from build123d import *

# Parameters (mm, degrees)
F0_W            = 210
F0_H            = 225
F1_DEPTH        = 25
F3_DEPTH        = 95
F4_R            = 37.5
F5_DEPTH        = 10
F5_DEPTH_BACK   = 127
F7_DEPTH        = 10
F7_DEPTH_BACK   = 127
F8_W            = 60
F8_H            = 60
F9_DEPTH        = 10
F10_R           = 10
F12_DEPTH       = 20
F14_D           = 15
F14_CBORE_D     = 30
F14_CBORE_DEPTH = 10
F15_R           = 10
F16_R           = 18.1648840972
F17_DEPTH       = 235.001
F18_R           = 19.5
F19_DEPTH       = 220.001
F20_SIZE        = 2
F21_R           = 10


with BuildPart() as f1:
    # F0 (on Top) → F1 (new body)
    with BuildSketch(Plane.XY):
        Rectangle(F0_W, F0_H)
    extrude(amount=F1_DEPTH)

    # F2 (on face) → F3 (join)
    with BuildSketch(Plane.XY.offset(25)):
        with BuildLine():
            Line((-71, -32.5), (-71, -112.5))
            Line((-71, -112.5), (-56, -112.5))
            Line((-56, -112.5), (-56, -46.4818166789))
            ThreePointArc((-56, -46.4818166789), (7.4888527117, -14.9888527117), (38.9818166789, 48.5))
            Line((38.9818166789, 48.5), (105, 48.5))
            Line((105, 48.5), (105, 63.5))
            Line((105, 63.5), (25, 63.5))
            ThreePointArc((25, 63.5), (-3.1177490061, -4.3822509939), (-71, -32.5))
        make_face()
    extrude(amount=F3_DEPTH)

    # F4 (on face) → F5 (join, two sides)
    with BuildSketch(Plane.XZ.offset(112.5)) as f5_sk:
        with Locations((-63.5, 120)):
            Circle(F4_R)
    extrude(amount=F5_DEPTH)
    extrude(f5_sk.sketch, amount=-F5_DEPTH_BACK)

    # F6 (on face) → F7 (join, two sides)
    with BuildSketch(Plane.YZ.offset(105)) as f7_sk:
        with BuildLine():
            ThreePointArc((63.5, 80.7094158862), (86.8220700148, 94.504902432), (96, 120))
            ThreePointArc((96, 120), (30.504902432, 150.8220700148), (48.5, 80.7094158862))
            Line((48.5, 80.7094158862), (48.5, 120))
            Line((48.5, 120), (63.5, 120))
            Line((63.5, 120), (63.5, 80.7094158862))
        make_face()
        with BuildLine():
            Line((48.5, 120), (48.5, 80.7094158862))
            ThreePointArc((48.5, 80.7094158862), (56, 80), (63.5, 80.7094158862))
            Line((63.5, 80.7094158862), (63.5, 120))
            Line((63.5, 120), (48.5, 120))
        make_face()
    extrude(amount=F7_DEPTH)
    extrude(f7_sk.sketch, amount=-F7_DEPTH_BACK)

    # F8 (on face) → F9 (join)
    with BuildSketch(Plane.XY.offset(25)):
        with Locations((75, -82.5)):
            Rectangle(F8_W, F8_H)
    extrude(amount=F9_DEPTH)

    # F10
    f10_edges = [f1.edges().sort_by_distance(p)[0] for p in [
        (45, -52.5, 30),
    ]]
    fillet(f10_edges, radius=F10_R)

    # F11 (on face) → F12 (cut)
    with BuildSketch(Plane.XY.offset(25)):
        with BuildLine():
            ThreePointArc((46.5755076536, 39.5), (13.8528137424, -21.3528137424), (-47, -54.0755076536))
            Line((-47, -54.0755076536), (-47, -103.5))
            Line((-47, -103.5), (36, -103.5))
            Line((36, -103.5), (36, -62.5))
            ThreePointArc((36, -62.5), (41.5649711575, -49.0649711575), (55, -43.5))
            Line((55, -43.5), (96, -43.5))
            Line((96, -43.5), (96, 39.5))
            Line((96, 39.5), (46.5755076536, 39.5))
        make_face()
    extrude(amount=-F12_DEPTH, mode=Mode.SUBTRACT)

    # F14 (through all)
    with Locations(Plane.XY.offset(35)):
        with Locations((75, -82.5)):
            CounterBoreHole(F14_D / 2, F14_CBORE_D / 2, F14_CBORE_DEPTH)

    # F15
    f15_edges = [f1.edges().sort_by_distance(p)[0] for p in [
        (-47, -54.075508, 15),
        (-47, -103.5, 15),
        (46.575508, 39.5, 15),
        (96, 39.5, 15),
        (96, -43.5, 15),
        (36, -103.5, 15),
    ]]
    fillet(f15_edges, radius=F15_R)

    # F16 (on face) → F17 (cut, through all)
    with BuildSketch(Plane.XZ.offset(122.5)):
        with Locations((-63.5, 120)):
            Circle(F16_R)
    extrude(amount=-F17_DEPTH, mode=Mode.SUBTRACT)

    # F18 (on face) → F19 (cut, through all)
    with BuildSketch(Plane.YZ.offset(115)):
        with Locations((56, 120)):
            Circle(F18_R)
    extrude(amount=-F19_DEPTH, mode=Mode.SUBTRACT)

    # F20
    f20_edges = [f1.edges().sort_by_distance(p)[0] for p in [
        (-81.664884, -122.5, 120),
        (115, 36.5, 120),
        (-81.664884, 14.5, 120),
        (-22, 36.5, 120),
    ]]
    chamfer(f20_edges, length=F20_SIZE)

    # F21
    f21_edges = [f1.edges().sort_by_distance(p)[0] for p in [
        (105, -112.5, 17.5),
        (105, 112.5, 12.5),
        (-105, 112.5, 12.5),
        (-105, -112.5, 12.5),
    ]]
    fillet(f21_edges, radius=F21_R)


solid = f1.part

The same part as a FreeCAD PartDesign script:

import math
import FreeCAD as App
import Part
import Sketcher


def edges_at(feature, points):
    """Names of the edges that pass closest to the given points."""
    edges = feature.Shape.Edges
    near = lambda p: min(range(len(edges)), key=lambda i: edges[i].distToShape(Part.Vertex(*p))[0])
    return sorted({f"Edge{near(p) + 1}" for p in points})


def add_polygon(sketch, points):
    """Adds a closed chain of lines whose ends are joined by coincident constraints."""
    first, n = sketch.GeometryCount, len(points)
    for a, b in zip(points, points[1:] + points[:1]):
        sketch.addGeometry(Part.LineSegment(App.Vector(*a, 0), App.Vector(*b, 0)), False)
    for i in range(n):
        sketch.addConstraint(Sketcher.Constraint("Coincident", first + i, 2, first + (i + 1) % n, 1))

doc = App.newDocument("Part")
body = doc.addObject("PartDesign::Body", "Body")

sketch1 = doc.addObject("Sketcher::SketchObject", "Sketch")
body.addObject(sketch1)
sketch1.AttachmentSupport = (doc.XY_Plane, [""])
sketch1.MapMode = "FlatFace"
add_polygon(sketch1, [(-105, 112.5), (-105, -112.5), (105, -112.5), (105, 112.5)])
sketch1.addConstraint(Sketcher.Constraint("Vertical", 0))
sketch1.addConstraint(Sketcher.Constraint("Horizontal", 1))
sketch1.addConstraint(Sketcher.Constraint("Vertical", 2))
sketch1.addConstraint(Sketcher.Constraint("Horizontal", 3))
sketch1.addConstraint(Sketcher.Constraint("Symmetric", 0, 2, 2, 2, -1, 1))
sketch1.addConstraint(Sketcher.Constraint("DistanceX", 1, 1, 1, 2, 210.0))
sketch1.addConstraint(Sketcher.Constraint("DistanceY", 0, 2, 0, 1, 225.0))
pad1 = doc.addObject("PartDesign::Pad", "Pad")
body.addObject(pad1)
pad1.Profile = sketch1
pad1.Length = 25

sketch2 = doc.addObject("Sketcher::SketchObject", "Sketch001")
body.addObject(sketch2)
sketch2.AttachmentSupport = (doc.XY_Plane, [""])
sketch2.MapMode = "FlatFace"
sketch2.AttachmentOffset = App.Placement(App.Vector(0, 0, 25), App.Rotation())
sketch2.addGeometry(Part.LineSegment(App.Vector(-71, -32.5, 0), App.Vector(-71, -112.5, 0)), False)
sketch2.addGeometry(Part.LineSegment(App.Vector(-71, -112.5, 0), App.Vector(-56, -112.5, 0)), False)
sketch2.addGeometry(Part.LineSegment(App.Vector(-56, -112.5, 0), App.Vector(-56, -46.481817, 0)), False)
sketch2.addGeometry(Part.ArcOfCircle(Part.Circle(App.Vector(-71, 63.5, 0), App.Vector(0, 0, 1), 111), math.radians(-82.233566), math.radians(-7.766434)), False)
sketch2.addGeometry(Part.LineSegment(App.Vector(38.981817, 48.5, 0), App.Vector(105, 48.5, 0)), False)
sketch2.addGeometry(Part.LineSegment(App.Vector(105, 48.5, 0), App.Vector(105, 63.5, 0)), False)
sketch2.addGeometry(Part.LineSegment(App.Vector(105, 63.5, 0), App.Vector(25, 63.5, 0)), False)
sketch2.addGeometry(Part.ArcOfCircle(Part.Circle(App.Vector(-71, 63.5, 0), App.Vector(0, 0, 1), 96), math.radians(-90), math.radians(0)), False)
sketch2.addConstraint(Sketcher.Constraint("Coincident", 0, 2, 1, 1))
sketch2.addConstraint(Sketcher.Constraint("Coincident", 1, 2, 2, 1))
sketch2.addConstraint(Sketcher.Constraint("Coincident", 2, 2, 3, 1))
sketch2.addConstraint(Sketcher.Constraint("Coincident", 3, 2, 4, 1))
sketch2.addConstraint(Sketcher.Constraint("Coincident", 4, 2, 5, 1))
sketch2.addConstraint(Sketcher.Constraint("Coincident", 5, 2, 6, 1))
sketch2.addConstraint(Sketcher.Constraint("Coincident", 6, 2, 7, 2))
sketch2.addConstraint(Sketcher.Constraint("Coincident", 7, 1, 0, 1))
sketch2.addConstraint(Sketcher.Constraint("Vertical", 0))
sketch2.addConstraint(Sketcher.Constraint("Horizontal", 1))
sketch2.addConstraint(Sketcher.Constraint("Vertical", 2))
sketch2.addConstraint(Sketcher.Constraint("Horizontal", 4))
sketch2.addConstraint(Sketcher.Constraint("Vertical", 5))
sketch2.addConstraint(Sketcher.Constraint("Horizontal", 6))
sketch2.addConstraint(Sketcher.Constraint("Coincident", 7, 3, 3, 3))
sketch2.addConstraint(Sketcher.Constraint("Horizontal", 7, 3, 5, 2))
sketch2.addConstraint(Sketcher.Constraint("Vertical", 7, 3, 0, 2))
sketch2.addConstraint(Sketcher.Constraint("Equal", 6, 0))
sketch2.addConstraint(Sketcher.Constraint("Equal", 4, 2))
sketch2.addConstraint(Sketcher.Constraint("Radius", 3, 111.0))
sketch2.addConstraint(Sketcher.Constraint("Radius", 7, 96.0))
sketch2.addConstraint(Sketcher.Constraint("DistanceX", 1, 1, 1, 2, 15.0))
sketch2.addConstraint(Sketcher.Constraint("DistanceX", 6, 2, 6, 1, 80.0))
sketch2.addConstraint(Sketcher.Constraint("DistanceX", 3, 3, -1, 1, 71.0))
sketch2.addConstraint(Sketcher.Constraint("DistanceY", -1, 1, 3, 3, 63.5))
pad2 = doc.addObject("PartDesign::Pad", "Pad001")
body.addObject(pad2)
pad2.Profile = sketch2
pad2.Length = 95

sketch3 = doc.addObject("Sketcher::SketchObject", "Sketch002")
body.addObject(sketch3)
sketch3.AttachmentSupport = (doc.XZ_Plane, [""])
sketch3.MapMode = "FlatFace"
sketch3.AttachmentOffset = App.Placement(App.Vector(0, 0, 112.5), App.Rotation())
sketch3.addGeometry(Part.Circle(App.Vector(-63.5, 120, 0), App.Vector(0, 0, 1), 37.5), False)
sketch3.addConstraint(Sketcher.Constraint("Diameter", 0, 75.0))
sketch3.addConstraint(Sketcher.Constraint("DistanceY", -1, 1, 0, 3, 120.0))
sketch3.addConstraint(Sketcher.Constraint("DistanceX", 0, 3, -1, 1, 63.5))
pad3 = doc.addObject("PartDesign::Pad", "Pad002")
body.addObject(pad3)
pad3.Profile = sketch3
pad3.Type = "TwoLengths"
pad3.Length = 10
pad3.Length2 = 127

sketch4 = doc.addObject("Sketcher::SketchObject", "Sketch003")
body.addObject(sketch4)
sketch4.AttachmentSupport = (doc.YZ_Plane, [""])
sketch4.MapMode = "FlatFace"
sketch4.AttachmentOffset = App.Placement(App.Vector(0, 0, 105), App.Rotation())
sketch4.addGeometry(Part.ArcOfCircle(Part.Circle(App.Vector(56, 120, 0), App.Vector(0, 0, 1), 40), math.radians(-79.193077), math.radians(0)), False)
sketch4.addGeometry(Part.ArcOfCircle(Part.Circle(App.Vector(56, 120, 0), App.Vector(0, 0, 1), 40), math.radians(0), math.radians(259.193077)), False)
sketch4.addGeometry(Part.ArcOfCircle(Part.Circle(App.Vector(56, 120, 0), App.Vector(0, 0, 1), 40), math.radians(-100.806923), math.radians(-79.193077)), False)
sketch4.addConstraint(Sketcher.Constraint("Tangent", 0, 2, 1, 1))
sketch4.addConstraint(Sketcher.Constraint("Tangent", 1, 2, 2, 1))
sketch4.addConstraint(Sketcher.Constraint("Tangent", 2, 2, 0, 1))
sketch4.addConstraint(Sketcher.Constraint("Horizontal", 2, 3, 0, 2))
sketch4.addConstraint(Sketcher.Constraint("Horizontal", 1, 2, 2, 2))
sketch4.addConstraint(Sketcher.Constraint("Radius", 0, 40.0))
sketch4.addConstraint(Sketcher.Constraint("DistanceX", -1, 1, 0, 3, 56.0))
sketch4.addConstraint(Sketcher.Constraint("DistanceY", -1, 1, 0, 3, 120.0))
sketch4.addConstraint(Sketcher.Constraint("DistanceX", 1, 2, 2, 2, 15.0))
pad4 = doc.addObject("PartDesign::Pad", "Pad003")
body.addObject(pad4)
pad4.Profile = sketch4
pad4.Type = "TwoLengths"
pad4.Length = 10
pad4.Length2 = 127

sketch5 = doc.addObject("Sketcher::SketchObject", "Sketch004")
body.addObject(sketch5)
sketch5.AttachmentSupport = (doc.XY_Plane, [""])
sketch5.MapMode = "FlatFace"
sketch5.AttachmentOffset = App.Placement(App.Vector(0, 0, 25), App.Rotation())
add_polygon(sketch5, [(45, -52.5), (45, -112.5), (105, -112.5), (105, -52.5)])
sketch5.addConstraint(Sketcher.Constraint("Vertical", 0))
sketch5.addConstraint(Sketcher.Constraint("Horizontal", 1))
sketch5.addConstraint(Sketcher.Constraint("Vertical", 2))
sketch5.addConstraint(Sketcher.Constraint("Horizontal", 3))
sketch5.addConstraint(Sketcher.Constraint("Equal", 3, 0))
sketch5.addConstraint(Sketcher.Constraint("DistanceX", 1, 1, 1, 2, 60.0))
sketch5.addConstraint(Sketcher.Constraint("DistanceX", -1, 1, 0, 2, 45.0))
sketch5.addConstraint(Sketcher.Constraint("DistanceY", 0, 2, -1, 1, 112.5))
pad5 = doc.addObject("PartDesign::Pad", "Pad004")
body.addObject(pad5)
pad5.Profile = sketch5
pad5.Length = 10
doc.recompute()

fillet = doc.addObject("PartDesign::Fillet", "Fillet")
body.addObject(fillet)
fillet.Base = (pad5, edges_at(pad5, [(45, -52.5, 30)]))
fillet.Radius = 10

sketch6 = doc.addObject("Sketcher::SketchObject", "Sketch005")
body.addObject(sketch6)
sketch6.AttachmentSupport = (doc.XY_Plane, [""])
sketch6.MapMode = "FlatFace"
sketch6.AttachmentOffset = App.Placement(App.Vector(0, 0, 25), App.Rotation())
sketch6.addGeometry(Part.ArcOfCircle(Part.Circle(App.Vector(-71, 63.5, 0), App.Vector(0, 0, 1), 120), math.radians(-78.463041), math.radians(-11.536959)), False)
sketch6.addGeometry(Part.LineSegment(App.Vector(-47, -54.075508, 0), App.Vector(-47, -103.5, 0)), False)
sketch6.addGeometry(Part.LineSegment(App.Vector(-47, -103.5, 0), App.Vector(36, -103.5, 0)), False)
sketch6.addGeometry(Part.LineSegment(App.Vector(36, -103.5, 0), App.Vector(36, -62.5, 0)), False)
sketch6.addGeometry(Part.ArcOfCircle(Part.Circle(App.Vector(55, -62.5, 0), App.Vector(0, 0, 1), 19), math.radians(90), math.radians(180)), False)
sketch6.addGeometry(Part.LineSegment(App.Vector(55, -43.5, 0), App.Vector(96, -43.5, 0)), False)
sketch6.addGeometry(Part.LineSegment(App.Vector(96, -43.5, 0), App.Vector(96, 39.5, 0)), False)
sketch6.addGeometry(Part.LineSegment(App.Vector(96, 39.5, 0), App.Vector(46.575508, 39.5, 0)), False)
sketch6.addConstraint(Sketcher.Constraint("Coincident", 0, 1, 1, 1))
sketch6.addConstraint(Sketcher.Constraint("Coincident", 1, 2, 2, 1))
sketch6.addConstraint(Sketcher.Constraint("Coincident", 2, 2, 3, 1))
sketch6.addConstraint(Sketcher.Constraint("Tangent", 3, 2, 4, 2))
sketch6.addConstraint(Sketcher.Constraint("Tangent", 4, 1, 5, 1))
sketch6.addConstraint(Sketcher.Constraint("Coincident", 5, 2, 6, 1))
sketch6.addConstraint(Sketcher.Constraint("Coincident", 6, 2, 7, 1))
sketch6.addConstraint(Sketcher.Constraint("Coincident", 7, 2, 0, 2))
sketch6.addConstraint(Sketcher.Constraint("Vertical", 1))
sketch6.addConstraint(Sketcher.Constraint("Horizontal", 2))
sketch6.addConstraint(Sketcher.Constraint("Vertical", 3))
sketch6.addConstraint(Sketcher.Constraint("Horizontal", 5))
sketch6.addConstraint(Sketcher.Constraint("Vertical", 6))
sketch6.addConstraint(Sketcher.Constraint("Horizontal", 7))
sketch6.addConstraint(Sketcher.Constraint("Equal", 7, 1))
sketch6.addConstraint(Sketcher.Constraint("Equal", 5, 3))
sketch6.addConstraint(Sketcher.Constraint("Equal", 2, 6))
sketch6.addConstraint(Sketcher.Constraint("Radius", 0, 120.0))
sketch6.addConstraint(Sketcher.Constraint("Radius", 4, 19.0))
sketch6.addConstraint(Sketcher.Constraint("DistanceX", 2, 1, 2, 2, 83.0))
sketch6.addConstraint(Sketcher.Constraint("DistanceX", 5, 1, 5, 2, 41.0))
sketch6.addConstraint(Sketcher.Constraint("DistanceX", 0, 3, -1, 1, 71.0))
sketch6.addConstraint(Sketcher.Constraint("DistanceX", -1, 1, 4, 3, 55.0))
sketch6.addConstraint(Sketcher.Constraint("DistanceY", -1, 1, 0, 3, 63.5))
pocket1 = doc.addObject("PartDesign::Pocket", "Pocket")
body.addObject(pocket1)
pocket1.Profile = sketch6
pocket1.Length = 20

sketch7 = doc.addObject("Sketcher::SketchObject", "Sketch006")
body.addObject(sketch7)
sketch7.AttachmentSupport = (doc.XY_Plane, [""])
sketch7.MapMode = "FlatFace"
sketch7.AttachmentOffset = App.Placement(App.Vector(0, 0, 35), App.Rotation())
sketch7.addGeometry(Part.Circle(App.Vector(75, -82.5, 0), App.Vector(0, 0, 1), 7.5), False)
sketch7.addConstraint(Sketcher.Constraint("Diameter", 0, 15.0))
sketch7.addConstraint(Sketcher.Constraint("DistanceX", -1, 1, 0, 3, 75.0))
sketch7.addConstraint(Sketcher.Constraint("DistanceY", 0, 3, -1, 1, 82.5))
doc.recompute()
hole = doc.addObject("PartDesign::Hole", "Hole")
body.addObject(hole)
hole.Profile = sketch7
hole.ThreadType = "None"
hole.Diameter = 15
hole.DepthType = "ThroughAll"
hole.HoleCutType = "Counterbore"
hole.HoleCutDiameter = 30
hole.HoleCutDepth = 10
doc.recompute()

fillet2 = doc.addObject("PartDesign::Fillet", "Fillet001")
body.addObject(fillet2)
fillet2.Base = (hole, edges_at(hole, [
    (-47, -54.076, 15),
    (-47, -103.5, 15),
    (46.576, 39.5, 15),
    (96, 39.5, 15),
    (96, -43.5, 15),
    (36, -103.5, 15),
]))
fillet2.Radius = 10

sketch8 = doc.addObject("Sketcher::SketchObject", "Sketch007")
body.addObject(sketch8)
sketch8.AttachmentSupport = (doc.XZ_Plane, [""])
sketch8.MapMode = "FlatFace"
sketch8.AttachmentOffset = App.Placement(App.Vector(0, 0, 122.5), App.Rotation())
sketch8.addGeometry(Part.Circle(App.Vector(-63.5, 120, 0), App.Vector(0, 0, 1), 18.164884), False)
sketch8.addConstraint(Sketcher.Constraint("DistanceY", -1, 1, 0, 3, 120.0))
sketch8.addConstraint(Sketcher.Constraint("DistanceX", 0, 3, -1, 1, 63.5))
sketch8.addConstraint(Sketcher.Constraint("Diameter", 0, 36.329768))
pocket2 = doc.addObject("PartDesign::Pocket", "Pocket001")
body.addObject(pocket2)
pocket2.Profile = sketch8
pocket2.Type = "ThroughAll"

sketch9 = doc.addObject("Sketcher::SketchObject", "Sketch008")
body.addObject(sketch9)
sketch9.AttachmentSupport = (doc.YZ_Plane, [""])
sketch9.MapMode = "FlatFace"
sketch9.AttachmentOffset = App.Placement(App.Vector(0, 0, 115), App.Rotation())
sketch9.addGeometry(Part.Circle(App.Vector(56, 120, 0), App.Vector(0, 0, 1), 19.5), False)
sketch9.addConstraint(Sketcher.Constraint("Diameter", 0, 39.0))
sketch9.addConstraint(Sketcher.Constraint("DistanceX", -1, 1, 0, 3, 56.0))
sketch9.addConstraint(Sketcher.Constraint("DistanceY", -1, 1, 0, 3, 120.0))
pocket3 = doc.addObject("PartDesign::Pocket", "Pocket002")
body.addObject(pocket3)
pocket3.Profile = sketch9
pocket3.Type = "ThroughAll"
doc.recompute()

chamfer = doc.addObject("PartDesign::Chamfer", "Chamfer")
body.addObject(chamfer)
chamfer.Base = (pocket3, edges_at(pocket3, [
    (-81.665, -122.5, 120),
    (115, 36.5, 120),
    (-81.665, 14.5, 120),
    (-22, 36.5, 120),
]))
chamfer.Size = 2
doc.recompute()

fillet3 = doc.addObject("PartDesign::Fillet", "Fillet002")
body.addObject(fillet3)
fillet3.Base = (chamfer, edges_at(chamfer, [
    (105, -112.5, 17.5),
    (105, 112.5, 12.5),
    (-105, 112.5, 12.5),
    (-105, -112.5, 12.5),
]))
fillet3.Radius = 10

doc.recompute()
